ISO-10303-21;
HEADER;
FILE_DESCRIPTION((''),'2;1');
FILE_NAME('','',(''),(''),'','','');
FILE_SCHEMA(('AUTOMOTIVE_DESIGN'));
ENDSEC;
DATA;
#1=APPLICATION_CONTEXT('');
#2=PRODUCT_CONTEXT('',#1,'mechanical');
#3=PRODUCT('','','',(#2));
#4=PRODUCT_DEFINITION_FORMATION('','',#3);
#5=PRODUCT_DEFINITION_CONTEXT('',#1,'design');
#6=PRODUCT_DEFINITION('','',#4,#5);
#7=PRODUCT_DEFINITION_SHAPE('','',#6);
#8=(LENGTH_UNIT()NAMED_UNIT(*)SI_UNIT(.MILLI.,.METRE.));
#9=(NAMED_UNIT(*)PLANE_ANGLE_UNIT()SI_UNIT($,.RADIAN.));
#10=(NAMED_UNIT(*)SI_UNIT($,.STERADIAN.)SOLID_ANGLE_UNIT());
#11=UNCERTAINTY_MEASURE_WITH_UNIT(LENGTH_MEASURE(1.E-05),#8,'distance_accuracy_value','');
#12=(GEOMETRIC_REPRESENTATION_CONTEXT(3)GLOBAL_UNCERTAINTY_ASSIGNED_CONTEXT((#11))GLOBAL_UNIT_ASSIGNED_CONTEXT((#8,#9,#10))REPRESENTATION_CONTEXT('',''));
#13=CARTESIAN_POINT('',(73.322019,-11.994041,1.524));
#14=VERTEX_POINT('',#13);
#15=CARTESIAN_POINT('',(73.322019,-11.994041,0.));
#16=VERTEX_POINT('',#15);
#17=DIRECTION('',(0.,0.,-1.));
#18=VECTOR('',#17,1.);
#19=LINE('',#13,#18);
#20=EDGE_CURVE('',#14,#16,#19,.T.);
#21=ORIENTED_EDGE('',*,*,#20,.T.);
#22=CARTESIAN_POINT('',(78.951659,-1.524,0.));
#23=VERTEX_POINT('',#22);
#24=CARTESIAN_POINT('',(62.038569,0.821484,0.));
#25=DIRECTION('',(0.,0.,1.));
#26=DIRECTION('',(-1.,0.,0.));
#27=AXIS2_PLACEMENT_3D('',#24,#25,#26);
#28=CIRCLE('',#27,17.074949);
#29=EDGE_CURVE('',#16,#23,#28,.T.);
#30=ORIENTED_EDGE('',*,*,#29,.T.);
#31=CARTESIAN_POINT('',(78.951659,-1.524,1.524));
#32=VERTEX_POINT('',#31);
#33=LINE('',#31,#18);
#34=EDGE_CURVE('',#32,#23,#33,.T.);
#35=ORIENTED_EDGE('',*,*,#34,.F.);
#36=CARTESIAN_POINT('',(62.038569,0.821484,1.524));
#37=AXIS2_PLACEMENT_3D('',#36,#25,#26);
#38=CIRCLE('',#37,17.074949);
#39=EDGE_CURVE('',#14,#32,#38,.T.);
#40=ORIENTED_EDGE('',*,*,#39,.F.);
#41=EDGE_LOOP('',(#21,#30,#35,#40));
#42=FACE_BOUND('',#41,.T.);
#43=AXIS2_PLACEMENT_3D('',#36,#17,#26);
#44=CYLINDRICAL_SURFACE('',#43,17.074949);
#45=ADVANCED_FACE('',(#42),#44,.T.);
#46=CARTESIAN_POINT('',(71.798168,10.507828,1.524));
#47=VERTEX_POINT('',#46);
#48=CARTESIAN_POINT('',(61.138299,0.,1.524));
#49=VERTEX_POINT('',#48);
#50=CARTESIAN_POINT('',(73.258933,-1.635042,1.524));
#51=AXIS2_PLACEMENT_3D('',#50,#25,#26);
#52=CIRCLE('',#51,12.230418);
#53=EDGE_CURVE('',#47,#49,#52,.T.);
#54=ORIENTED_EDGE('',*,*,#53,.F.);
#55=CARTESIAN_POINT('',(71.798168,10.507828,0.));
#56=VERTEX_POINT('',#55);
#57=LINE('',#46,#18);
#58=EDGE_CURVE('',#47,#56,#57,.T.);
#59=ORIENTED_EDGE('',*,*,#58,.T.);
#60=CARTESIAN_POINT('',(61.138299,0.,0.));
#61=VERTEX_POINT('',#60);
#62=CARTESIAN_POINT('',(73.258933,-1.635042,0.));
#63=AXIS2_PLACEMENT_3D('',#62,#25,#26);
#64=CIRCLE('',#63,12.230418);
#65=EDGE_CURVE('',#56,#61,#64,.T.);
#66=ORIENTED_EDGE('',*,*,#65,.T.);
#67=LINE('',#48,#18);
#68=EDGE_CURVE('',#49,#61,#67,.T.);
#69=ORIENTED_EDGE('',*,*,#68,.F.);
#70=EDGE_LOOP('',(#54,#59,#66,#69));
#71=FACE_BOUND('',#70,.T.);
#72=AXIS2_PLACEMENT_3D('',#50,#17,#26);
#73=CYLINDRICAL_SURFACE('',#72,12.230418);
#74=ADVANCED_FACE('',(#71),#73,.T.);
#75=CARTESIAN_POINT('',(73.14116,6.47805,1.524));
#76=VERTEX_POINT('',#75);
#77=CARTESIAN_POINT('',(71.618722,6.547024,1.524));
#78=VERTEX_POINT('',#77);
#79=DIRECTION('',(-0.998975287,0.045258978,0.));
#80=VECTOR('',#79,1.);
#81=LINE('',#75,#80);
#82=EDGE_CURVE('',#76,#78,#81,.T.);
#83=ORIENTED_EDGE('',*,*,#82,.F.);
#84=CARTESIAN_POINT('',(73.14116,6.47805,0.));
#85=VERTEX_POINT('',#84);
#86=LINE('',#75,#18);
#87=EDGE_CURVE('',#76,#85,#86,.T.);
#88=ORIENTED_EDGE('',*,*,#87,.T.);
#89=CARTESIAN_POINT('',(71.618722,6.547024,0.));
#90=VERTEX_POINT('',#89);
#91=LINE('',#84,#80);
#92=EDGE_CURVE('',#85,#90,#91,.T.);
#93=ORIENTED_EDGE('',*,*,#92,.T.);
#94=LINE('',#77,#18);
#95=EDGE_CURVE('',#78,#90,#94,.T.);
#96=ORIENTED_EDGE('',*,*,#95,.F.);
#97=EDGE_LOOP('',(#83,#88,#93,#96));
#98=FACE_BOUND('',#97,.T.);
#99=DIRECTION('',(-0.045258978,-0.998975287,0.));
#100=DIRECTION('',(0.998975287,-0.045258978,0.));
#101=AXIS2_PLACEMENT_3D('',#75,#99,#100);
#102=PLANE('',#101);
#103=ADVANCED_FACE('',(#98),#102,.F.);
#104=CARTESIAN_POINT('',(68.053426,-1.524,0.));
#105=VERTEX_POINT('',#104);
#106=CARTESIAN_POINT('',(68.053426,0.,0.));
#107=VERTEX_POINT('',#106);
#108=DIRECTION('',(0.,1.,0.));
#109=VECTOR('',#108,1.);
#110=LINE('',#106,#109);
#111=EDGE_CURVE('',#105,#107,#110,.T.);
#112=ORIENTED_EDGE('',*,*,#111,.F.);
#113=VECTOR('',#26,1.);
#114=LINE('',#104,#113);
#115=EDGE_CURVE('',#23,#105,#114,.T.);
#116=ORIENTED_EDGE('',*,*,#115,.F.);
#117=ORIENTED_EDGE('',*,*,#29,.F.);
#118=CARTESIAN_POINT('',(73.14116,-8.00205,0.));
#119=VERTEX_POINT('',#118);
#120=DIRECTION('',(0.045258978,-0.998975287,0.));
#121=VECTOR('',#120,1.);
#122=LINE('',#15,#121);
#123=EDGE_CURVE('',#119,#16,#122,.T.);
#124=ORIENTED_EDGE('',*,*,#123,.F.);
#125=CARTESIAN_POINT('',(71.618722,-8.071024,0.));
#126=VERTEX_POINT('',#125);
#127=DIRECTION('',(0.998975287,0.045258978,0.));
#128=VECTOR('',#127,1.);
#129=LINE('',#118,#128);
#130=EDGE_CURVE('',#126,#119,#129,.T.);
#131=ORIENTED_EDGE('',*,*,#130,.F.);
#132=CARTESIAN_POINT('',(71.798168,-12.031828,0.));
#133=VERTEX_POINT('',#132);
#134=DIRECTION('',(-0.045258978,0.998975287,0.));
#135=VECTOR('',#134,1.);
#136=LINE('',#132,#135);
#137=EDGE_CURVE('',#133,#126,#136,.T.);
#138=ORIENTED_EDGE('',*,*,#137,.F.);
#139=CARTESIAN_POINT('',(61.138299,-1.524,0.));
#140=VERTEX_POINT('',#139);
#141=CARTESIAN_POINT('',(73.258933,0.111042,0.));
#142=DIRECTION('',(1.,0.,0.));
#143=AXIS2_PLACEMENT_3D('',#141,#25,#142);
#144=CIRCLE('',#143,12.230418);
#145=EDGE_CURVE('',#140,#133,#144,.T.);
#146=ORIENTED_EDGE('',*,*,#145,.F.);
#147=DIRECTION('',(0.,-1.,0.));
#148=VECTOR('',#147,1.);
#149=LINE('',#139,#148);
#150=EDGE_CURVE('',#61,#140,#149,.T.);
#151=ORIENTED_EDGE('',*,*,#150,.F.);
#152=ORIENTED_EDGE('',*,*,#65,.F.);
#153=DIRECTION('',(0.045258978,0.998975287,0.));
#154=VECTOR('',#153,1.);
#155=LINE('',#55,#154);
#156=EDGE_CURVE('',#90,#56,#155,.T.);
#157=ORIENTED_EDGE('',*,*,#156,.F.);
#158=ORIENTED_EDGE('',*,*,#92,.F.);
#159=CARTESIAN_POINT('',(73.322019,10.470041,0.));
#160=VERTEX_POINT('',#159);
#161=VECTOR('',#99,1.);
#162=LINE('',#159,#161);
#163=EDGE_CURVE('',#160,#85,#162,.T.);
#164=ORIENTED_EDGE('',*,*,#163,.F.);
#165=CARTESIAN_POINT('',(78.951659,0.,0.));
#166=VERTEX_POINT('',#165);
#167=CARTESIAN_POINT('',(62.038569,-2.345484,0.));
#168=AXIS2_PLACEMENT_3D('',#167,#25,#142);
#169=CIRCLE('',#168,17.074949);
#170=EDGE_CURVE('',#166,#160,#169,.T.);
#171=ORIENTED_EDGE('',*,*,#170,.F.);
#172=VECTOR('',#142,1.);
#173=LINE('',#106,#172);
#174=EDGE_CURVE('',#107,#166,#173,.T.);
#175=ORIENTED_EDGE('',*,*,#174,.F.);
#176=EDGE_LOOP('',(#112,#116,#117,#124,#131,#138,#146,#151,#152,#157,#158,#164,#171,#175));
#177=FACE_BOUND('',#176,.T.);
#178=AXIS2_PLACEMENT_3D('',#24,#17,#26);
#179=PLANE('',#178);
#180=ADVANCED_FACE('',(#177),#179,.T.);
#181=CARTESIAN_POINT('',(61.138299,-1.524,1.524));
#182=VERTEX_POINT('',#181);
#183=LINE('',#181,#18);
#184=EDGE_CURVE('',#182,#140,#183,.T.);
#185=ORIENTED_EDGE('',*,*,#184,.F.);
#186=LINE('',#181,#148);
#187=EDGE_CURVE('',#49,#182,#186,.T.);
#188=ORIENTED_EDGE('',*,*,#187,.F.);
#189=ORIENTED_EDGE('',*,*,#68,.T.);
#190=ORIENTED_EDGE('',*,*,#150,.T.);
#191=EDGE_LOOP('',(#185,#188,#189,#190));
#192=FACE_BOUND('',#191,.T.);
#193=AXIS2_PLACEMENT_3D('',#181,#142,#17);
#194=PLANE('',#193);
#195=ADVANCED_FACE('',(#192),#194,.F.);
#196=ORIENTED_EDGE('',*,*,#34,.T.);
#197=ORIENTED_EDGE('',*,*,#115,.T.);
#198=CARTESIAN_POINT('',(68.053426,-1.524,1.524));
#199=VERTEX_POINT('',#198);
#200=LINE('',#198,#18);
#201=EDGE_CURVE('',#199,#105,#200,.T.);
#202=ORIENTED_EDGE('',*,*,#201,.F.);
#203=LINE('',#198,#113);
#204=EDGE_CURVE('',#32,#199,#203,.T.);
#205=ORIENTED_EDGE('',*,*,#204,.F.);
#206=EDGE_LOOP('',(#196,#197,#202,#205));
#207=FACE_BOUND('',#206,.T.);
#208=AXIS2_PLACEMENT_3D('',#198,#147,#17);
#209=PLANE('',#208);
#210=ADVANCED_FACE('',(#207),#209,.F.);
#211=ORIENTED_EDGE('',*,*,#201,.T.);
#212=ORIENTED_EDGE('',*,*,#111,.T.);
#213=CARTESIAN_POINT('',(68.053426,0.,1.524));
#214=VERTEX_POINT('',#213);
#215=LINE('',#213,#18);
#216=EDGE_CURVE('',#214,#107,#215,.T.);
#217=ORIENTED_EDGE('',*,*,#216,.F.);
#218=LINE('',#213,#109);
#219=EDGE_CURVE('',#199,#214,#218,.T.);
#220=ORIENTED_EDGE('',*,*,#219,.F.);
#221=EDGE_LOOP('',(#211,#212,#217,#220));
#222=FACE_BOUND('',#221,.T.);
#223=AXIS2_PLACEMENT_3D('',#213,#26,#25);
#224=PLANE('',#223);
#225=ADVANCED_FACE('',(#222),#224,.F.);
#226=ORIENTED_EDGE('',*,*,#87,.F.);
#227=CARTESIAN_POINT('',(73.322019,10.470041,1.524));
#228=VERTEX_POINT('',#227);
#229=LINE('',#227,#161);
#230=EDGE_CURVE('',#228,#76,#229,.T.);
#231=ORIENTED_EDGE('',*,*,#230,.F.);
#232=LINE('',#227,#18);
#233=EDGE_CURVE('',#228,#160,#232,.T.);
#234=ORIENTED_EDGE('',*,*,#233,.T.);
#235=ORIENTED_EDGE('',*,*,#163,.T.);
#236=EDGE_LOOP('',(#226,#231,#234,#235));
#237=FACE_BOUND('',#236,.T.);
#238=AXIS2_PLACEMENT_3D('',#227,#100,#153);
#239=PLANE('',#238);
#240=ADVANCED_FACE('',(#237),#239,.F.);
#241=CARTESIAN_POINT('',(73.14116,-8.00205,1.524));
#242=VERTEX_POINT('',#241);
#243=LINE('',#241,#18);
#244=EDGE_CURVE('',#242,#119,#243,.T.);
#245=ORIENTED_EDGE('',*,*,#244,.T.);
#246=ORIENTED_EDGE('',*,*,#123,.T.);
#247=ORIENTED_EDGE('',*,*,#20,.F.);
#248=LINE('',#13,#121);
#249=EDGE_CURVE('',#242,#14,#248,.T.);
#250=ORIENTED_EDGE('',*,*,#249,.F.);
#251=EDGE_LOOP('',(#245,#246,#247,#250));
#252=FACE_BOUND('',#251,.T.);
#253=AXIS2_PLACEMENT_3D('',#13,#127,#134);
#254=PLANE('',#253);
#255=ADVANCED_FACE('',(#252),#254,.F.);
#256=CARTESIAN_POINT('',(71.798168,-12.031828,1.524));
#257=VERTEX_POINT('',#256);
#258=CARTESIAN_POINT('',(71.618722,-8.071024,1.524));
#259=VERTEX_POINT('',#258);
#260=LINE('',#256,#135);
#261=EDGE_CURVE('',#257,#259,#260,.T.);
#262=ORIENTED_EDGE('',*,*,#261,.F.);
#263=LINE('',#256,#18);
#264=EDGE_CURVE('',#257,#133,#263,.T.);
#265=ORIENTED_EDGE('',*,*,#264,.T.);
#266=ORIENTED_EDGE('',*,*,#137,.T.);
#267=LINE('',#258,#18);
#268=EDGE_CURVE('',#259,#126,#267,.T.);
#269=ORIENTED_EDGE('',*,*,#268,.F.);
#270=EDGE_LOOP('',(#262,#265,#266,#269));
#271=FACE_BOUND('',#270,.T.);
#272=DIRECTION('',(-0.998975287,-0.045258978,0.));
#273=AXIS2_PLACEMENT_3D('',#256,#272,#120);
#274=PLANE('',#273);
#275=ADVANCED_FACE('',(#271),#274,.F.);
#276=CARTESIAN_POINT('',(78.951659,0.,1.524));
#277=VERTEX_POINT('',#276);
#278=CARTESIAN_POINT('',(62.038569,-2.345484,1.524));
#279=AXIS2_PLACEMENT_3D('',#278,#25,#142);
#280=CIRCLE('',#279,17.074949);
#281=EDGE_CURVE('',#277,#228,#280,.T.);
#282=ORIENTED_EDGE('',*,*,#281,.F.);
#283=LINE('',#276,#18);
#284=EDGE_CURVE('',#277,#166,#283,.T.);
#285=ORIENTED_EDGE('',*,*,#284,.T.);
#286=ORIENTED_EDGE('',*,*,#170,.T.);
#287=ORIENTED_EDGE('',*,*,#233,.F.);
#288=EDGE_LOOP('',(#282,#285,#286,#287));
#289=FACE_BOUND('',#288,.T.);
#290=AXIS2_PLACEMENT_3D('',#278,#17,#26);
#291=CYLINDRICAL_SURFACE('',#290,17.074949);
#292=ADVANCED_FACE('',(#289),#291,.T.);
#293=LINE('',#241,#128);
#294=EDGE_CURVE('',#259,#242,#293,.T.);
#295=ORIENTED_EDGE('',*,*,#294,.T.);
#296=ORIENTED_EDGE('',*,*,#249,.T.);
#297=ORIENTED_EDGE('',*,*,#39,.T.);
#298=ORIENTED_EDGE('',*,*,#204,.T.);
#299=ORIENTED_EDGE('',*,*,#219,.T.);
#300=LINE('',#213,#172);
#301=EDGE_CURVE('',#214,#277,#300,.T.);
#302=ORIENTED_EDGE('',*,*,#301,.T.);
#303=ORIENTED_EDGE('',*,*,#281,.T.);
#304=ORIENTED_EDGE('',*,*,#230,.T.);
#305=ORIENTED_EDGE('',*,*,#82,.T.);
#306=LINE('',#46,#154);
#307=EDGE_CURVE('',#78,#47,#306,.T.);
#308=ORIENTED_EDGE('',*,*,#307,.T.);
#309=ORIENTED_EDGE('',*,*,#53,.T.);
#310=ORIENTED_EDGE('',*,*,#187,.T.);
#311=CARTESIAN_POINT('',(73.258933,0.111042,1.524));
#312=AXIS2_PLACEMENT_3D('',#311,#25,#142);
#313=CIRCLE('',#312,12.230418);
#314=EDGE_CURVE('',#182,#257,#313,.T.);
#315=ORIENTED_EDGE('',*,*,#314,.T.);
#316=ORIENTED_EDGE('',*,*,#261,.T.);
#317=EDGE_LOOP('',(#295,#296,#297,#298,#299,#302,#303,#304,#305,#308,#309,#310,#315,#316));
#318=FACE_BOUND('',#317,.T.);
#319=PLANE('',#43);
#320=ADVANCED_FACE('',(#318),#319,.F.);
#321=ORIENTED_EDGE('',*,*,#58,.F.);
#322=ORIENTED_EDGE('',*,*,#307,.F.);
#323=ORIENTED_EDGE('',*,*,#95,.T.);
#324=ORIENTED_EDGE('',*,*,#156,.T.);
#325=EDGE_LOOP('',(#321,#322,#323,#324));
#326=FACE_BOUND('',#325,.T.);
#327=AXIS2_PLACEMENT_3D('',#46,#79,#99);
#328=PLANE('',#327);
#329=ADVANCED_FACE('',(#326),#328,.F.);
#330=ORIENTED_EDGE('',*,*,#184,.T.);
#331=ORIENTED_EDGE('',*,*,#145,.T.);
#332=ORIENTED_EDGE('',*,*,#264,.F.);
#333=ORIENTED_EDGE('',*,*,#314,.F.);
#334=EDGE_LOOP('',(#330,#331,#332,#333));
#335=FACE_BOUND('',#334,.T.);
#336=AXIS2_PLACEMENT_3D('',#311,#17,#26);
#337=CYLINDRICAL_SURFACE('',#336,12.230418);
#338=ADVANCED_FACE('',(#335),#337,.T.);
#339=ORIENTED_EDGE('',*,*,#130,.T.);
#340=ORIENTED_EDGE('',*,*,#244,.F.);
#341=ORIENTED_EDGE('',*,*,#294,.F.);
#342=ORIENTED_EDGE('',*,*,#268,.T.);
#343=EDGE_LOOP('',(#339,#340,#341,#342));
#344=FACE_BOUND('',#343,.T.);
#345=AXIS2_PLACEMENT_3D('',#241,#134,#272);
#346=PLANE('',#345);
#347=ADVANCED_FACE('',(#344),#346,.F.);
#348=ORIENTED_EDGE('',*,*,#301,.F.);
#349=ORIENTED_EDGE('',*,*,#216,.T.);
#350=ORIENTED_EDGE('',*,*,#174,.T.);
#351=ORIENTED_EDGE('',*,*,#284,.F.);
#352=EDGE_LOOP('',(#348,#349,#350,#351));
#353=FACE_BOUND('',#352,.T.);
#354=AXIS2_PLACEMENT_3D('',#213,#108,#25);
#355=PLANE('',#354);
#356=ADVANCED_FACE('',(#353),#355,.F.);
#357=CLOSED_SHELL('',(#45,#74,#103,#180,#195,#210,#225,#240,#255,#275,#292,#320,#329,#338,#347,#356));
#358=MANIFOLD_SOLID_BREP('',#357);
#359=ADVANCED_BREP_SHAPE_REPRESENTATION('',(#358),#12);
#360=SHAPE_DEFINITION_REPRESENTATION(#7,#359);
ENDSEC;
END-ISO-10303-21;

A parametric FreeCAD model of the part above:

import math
import FreeCAD as App
import Part
import Sketcher
Q = App.Units.Quantity

doc = App.newDocument("Part")
params = doc.addObject("Spreadsheet::Sheet", "Params")
for row, (alias, value) in enumerate([
    ("sketch1_height", "0.06 in"),
    ("sketch1_length", "0.06 in"),
    ("pad1_length", "0.06 in"),
], start=1):
    params.set(f"A{row}", alias)
    params.set(f"B{row}", "=" + value)
    params.setAlias(f"B{row}", alias)

body = doc.addObject("PartDesign::Body", "Body")

# Sketch on XY plane
sketch1 = doc.addObject("Sketcher::SketchObject", "Sketch")
body.addObject(sketch1)
sketch1.AttachmentSupport = (doc.XY_Plane, [""])
sketch1.MapMode = "FlatFace"
sketch1.addGeometry(Part.LineSegment(App.Vector(68.1, -1.5, 0), App.Vector(68.1, 0, 0)), False)
sketch1.addGeometry(Part.LineSegment(App.Vector(68.1, 0, 0), App.Vector(79, 0, 0)), False)
sketch1.addGeometry(Part.ArcOfCircle(Part.Circle(App.Vector(62, -2.3, 0), App.Vector(0, 0, 1), 17.1), math.radians(8), math.radians(49)), False)
sketch1.addGeometry(Part.LineSegment(App.Vector(73.3, 10.5, 0), App.Vector(73.1, 6.5, 0)), False)
sketch1.addGeometry(Part.LineSegment(App.Vector(73.1, 6.5, 0), App.Vector(71.6, 6.5, 0)), False)
sketch1.addGeometry(Part.LineSegment(App.Vector(71.6, 6.5, 0), App.Vector(71.8, 10.5, 0)), False)
sketch1.addGeometry(Part.ArcOfCircle(Part.Circle(App.Vector(73.3, -1.6, 0), App.Vector(0, 0, 1), 12.2), math.radians(97), math.radians(172)), False)
sketch1.addGeometry(Part.LineSegment(App.Vector(61.1, 0, 0), App.Vector(61.1, -1.5, 0)), False)
sketch1.addGeometry(Part.ArcOfCircle(Part.Circle(App.Vector(73.3, 0.1, 0), App.Vector(0, 0, 1), 12.2), math.radians(-172), math.radians(-97)), False)
sketch1.addGeometry(Part.LineSegment(App.Vector(71.8, -12, 0), App.Vector(71.6, -8.1, 0)), False)
sketch1.addGeometry(Part.LineSegment(App.Vector(71.6, -8.1, 0), App.Vector(73.1, -8, 0)), False)
sketch1.addGeometry(Part.LineSegment(App.Vector(73.1, -8, 0), App.Vector(73.3, -12, 0)), False)
sketch1.addGeometry(Part.ArcOfCircle(Part.Circle(App.Vector(62, 0.8, 0), App.Vector(0, 0, 1), 17.1), math.radians(-49), math.radians(-8)), False)
sketch1.addGeometry(Part.LineSegment(App.Vector(79, -1.5, 0), App.Vector(68.1, -1.5, 0)), False)
sketch1.addConstraint(Sketcher.Constraint("Coincident", 0, 2, 1, 1))
sketch1.addConstraint(Sketcher.Constraint("Coincident", 1, 2, 2, 1))
sketch1.addConstraint(Sketcher.Constraint("Coincident", 2, 2, 3, 1))
sketch1.addConstraint(Sketcher.Constraint("Coincident", 3, 2, 4, 1))
sketch1.addConstraint(Sketcher.Constraint("Coincident", 4, 2, 5, 1))
sketch1.addConstraint(Sketcher.Constraint("Coincident", 5, 2, 6, 1))
sketch1.addConstraint(Sketcher.Constraint("Coincident", 6, 2, 7, 1))
sketch1.addConstraint(Sketcher.Constraint("Coincident", 7, 2, 8, 1))
sketch1.addConstraint(Sketcher.Constraint("Coincident", 8, 2, 9, 1))
sketch1.addConstraint(Sketcher.Constraint("Coincident", 9, 2, 10, 1))
sketch1.addConstraint(Sketcher.Constraint("Coincident", 10, 2, 11, 1))
sketch1.addConstraint(Sketcher.Constraint("Coincident", 11, 2, 12, 1))
sketch1.addConstraint(Sketcher.Constraint("Coincident", 12, 2, 13, 1))
sketch1.addConstraint(Sketcher.Constraint("Coincident", 13, 2, 0, 1))
sketch1.addConstraint(Sketcher.Constraint("Vertical", 0))
sketch1.addConstraint(Sketcher.Constraint("Horizontal", 1))
sketch1.addConstraint(Sketcher.Constraint("Vertical", 7))
sketch1.addConstraint(Sketcher.Constraint("Horizontal", 13))
sketch1.addConstraint(Sketcher.Constraint("Equal", 6, 8))
sketch1.addConstraint(Sketcher.Constraint("Equal", 2, 12))
sketch1.addConstraint(Sketcher.Constraint("PointOnObject", 0, 2, -1))
sketch1.addConstraint(Sketcher.Constraint("PointOnObject", 6, 2, -1))
sketch1.addConstraint(Sketcher.Constraint("Perpendicular", 3, 4))
sketch1.addConstraint(Sketcher.Constraint("Perpendicular", 4, 5))
sketch1.addConstraint(Sketcher.Constraint("Perpendicular", 9, 10))
sketch1.addConstraint(Sketcher.Constraint("Perpendicular", 10, 11))
sketch1.addConstraint(Sketcher.Constraint("Horizontal", 7, 2, 12, 2))
sketch1.addConstraint(Sketcher.Constraint("Vertical", 6, 3, 8, 3))
sketch1.addConstraint(Sketcher.Constraint("Vertical", 2, 3, 12, 3))
sketch1.addConstraint(Sketcher.Constraint("Vertical", 5, 2, 8, 2))
sketch1.addConstraint(Sketcher.Constraint("Vertical", 4, 2, 9, 2))
sketch1.addConstraint(Sketcher.Constraint("Vertical", 3, 2, 10, 2))
sketch1.addConstraint(Sketcher.Constraint("Vertical", 2, 2, 11, 2))
sketch1.addConstraint(Sketcher.Constraint("Equal", 5, 9))
sketch1.addConstraint(Sketcher.Constraint("DistanceY", 0, 1, 0, 2, Q("0.06 in")))
sketch1.addConstraint(Sketcher.Constraint("Distance", 4, Q("0.06 in")))
sketch1.addConstraint(Sketcher.Constraint("Radius", 2, Q("17.074949 mm")))
sketch1.addConstraint(Sketcher.Constraint("Radius", 6, Q("12.230418 mm")))
sketch1.addConstraint(Sketcher.Constraint("DistanceX", -1, 1, 6, 2, Q("61.138299 mm")))
sketch1.addConstraint(Sketcher.Constraint("DistanceY", 8, 3, 2, 2, Q("10.358999 mm")))
sketch1.addConstraint(Sketcher.Constraint("DistanceX", 3, 2, 1, 2, Q("5.810499 mm")))
sketch1.addConstraint(Sketcher.Constraint("DistanceX", 2, 3, 8, 2, Q("9.759598 mm")))
sketch1.addConstraint(Sketcher.Constraint("DistanceX", 1, 1, 1, 2, Q("10.898233 mm")))
sketch1.addConstraint(Sketcher.Constraint("DistanceX", -1, 1, 2, 3, Q("62.038569 mm")))
sketch1.addConstraint(Sketcher.Constraint("DistanceY", 6, 3, -1, 1, Q("1.635042 mm")))
sketch1.addConstraint(Sketcher.Constraint("DistanceY", -1, 1, 3, 2, Q("6.47805 mm")))
sketch1.setExpression("Constraints[34]", "Params.sketch1_height")
sketch1.setExpression("Constraints[35]", "Params.sketch1_length")
pad1 = doc.addObject("PartDesign::Pad", "Pad")
body.addObject(pad1)
pad1.Profile = sketch1
pad1.setExpression("Length", "Params.pad1_length")

doc.recompute()
